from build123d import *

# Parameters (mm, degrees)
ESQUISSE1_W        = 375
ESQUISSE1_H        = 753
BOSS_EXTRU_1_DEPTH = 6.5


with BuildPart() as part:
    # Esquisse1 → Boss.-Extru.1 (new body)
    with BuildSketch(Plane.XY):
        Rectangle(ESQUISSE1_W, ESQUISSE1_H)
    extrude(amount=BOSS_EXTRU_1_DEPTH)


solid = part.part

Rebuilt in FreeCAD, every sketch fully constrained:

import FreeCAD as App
import Part
import Sketcher
from FreeCAD import Vector
Q = App.Units.Quantity

doc = App.newDocument("Part")
params = doc.addObject("Spreadsheet::Sheet", "Params")
for row, (alias, value) in enumerate([
    ("sketch1_width", "375 mm"),
    ("sketch1_height", "753 mm"),
    ("pad1_length", "6.5 mm"),
], start=1):
    params.set(f"A{row}", alias)
    params.set(f"B{row}", "=" + value)
    params.setAlias(f"B{row}", alias)

body = doc.addObject("PartDesign::Body", "Body")

# Sketch on XY plane
sketch1 = doc.addObject("Sketcher::SketchObject", "Sketch")
body.addObject(sketch1)
sketch1.AttachmentSupport = (doc.XY_Plane, [""])
sketch1.MapMode = "FlatFace"
sketch1.addGeometry(Part.LineSegment(Vector(-188, 376, 0), Vector(-188, -376, 0)), False)
sketch1.addGeometry(Part.LineSegment(Vector(-188, -376, 0), Vector(188, -376, 0)), False)
sketch1.addGeometry(Part.LineSegment(Vector(188, -376, 0), Vector(188, 376, 0)), False)
sketch1.addGeometry(Part.LineSegment(Vector(188, 376, 0), Vector(-188, 376, 0)), False)
sketch1.addConstraint(Sketcher.Constraint("Coincident", 0, 2, 1, 1))
sketch1.addConstraint(Sketcher.Constraint("Coincident", 1, 2, 2, 1))
sketch1.addConstraint(Sketcher.Constraint("Coincident", 2, 2, 3, 1))
sketch1.addConstraint(Sketcher.Constraint("Coincident", 3, 2, 0, 1))
sketch1.addConstraint(Sketcher.Constraint("Vertical", 0))
sketch1.addConstraint(Sketcher.Constraint("Horizontal", 1))
sketch1.addConstraint(Sketcher.Constraint("Vertical", 2))
sketch1.addConstraint(Sketcher.Constraint("Horizontal", 3))
sketch1.addConstraint(Sketcher.Constraint("Symmetric", 0, 2, 2, 2, -1, 1))
sketch1.addConstraint(Sketcher.Constraint("DistanceX", 1, 1, 1, 2, Q("375 mm")))
sketch1.addConstraint(Sketcher.Constraint("DistanceY", 0, 2, 0, 1, Q("753 mm")))
sketch1.setExpression("Constraints[9]", "Params.sketch1_width")
sketch1.setExpression("Constraints[10]", "Params.sketch1_height")
pad1 = doc.addObject("PartDesign::Pad", "Pad")
body.addObject(pad1)
pad1.Profile = sketch1
pad1.setExpression("Length", "Params.pad1_length")

doc.recompute()
